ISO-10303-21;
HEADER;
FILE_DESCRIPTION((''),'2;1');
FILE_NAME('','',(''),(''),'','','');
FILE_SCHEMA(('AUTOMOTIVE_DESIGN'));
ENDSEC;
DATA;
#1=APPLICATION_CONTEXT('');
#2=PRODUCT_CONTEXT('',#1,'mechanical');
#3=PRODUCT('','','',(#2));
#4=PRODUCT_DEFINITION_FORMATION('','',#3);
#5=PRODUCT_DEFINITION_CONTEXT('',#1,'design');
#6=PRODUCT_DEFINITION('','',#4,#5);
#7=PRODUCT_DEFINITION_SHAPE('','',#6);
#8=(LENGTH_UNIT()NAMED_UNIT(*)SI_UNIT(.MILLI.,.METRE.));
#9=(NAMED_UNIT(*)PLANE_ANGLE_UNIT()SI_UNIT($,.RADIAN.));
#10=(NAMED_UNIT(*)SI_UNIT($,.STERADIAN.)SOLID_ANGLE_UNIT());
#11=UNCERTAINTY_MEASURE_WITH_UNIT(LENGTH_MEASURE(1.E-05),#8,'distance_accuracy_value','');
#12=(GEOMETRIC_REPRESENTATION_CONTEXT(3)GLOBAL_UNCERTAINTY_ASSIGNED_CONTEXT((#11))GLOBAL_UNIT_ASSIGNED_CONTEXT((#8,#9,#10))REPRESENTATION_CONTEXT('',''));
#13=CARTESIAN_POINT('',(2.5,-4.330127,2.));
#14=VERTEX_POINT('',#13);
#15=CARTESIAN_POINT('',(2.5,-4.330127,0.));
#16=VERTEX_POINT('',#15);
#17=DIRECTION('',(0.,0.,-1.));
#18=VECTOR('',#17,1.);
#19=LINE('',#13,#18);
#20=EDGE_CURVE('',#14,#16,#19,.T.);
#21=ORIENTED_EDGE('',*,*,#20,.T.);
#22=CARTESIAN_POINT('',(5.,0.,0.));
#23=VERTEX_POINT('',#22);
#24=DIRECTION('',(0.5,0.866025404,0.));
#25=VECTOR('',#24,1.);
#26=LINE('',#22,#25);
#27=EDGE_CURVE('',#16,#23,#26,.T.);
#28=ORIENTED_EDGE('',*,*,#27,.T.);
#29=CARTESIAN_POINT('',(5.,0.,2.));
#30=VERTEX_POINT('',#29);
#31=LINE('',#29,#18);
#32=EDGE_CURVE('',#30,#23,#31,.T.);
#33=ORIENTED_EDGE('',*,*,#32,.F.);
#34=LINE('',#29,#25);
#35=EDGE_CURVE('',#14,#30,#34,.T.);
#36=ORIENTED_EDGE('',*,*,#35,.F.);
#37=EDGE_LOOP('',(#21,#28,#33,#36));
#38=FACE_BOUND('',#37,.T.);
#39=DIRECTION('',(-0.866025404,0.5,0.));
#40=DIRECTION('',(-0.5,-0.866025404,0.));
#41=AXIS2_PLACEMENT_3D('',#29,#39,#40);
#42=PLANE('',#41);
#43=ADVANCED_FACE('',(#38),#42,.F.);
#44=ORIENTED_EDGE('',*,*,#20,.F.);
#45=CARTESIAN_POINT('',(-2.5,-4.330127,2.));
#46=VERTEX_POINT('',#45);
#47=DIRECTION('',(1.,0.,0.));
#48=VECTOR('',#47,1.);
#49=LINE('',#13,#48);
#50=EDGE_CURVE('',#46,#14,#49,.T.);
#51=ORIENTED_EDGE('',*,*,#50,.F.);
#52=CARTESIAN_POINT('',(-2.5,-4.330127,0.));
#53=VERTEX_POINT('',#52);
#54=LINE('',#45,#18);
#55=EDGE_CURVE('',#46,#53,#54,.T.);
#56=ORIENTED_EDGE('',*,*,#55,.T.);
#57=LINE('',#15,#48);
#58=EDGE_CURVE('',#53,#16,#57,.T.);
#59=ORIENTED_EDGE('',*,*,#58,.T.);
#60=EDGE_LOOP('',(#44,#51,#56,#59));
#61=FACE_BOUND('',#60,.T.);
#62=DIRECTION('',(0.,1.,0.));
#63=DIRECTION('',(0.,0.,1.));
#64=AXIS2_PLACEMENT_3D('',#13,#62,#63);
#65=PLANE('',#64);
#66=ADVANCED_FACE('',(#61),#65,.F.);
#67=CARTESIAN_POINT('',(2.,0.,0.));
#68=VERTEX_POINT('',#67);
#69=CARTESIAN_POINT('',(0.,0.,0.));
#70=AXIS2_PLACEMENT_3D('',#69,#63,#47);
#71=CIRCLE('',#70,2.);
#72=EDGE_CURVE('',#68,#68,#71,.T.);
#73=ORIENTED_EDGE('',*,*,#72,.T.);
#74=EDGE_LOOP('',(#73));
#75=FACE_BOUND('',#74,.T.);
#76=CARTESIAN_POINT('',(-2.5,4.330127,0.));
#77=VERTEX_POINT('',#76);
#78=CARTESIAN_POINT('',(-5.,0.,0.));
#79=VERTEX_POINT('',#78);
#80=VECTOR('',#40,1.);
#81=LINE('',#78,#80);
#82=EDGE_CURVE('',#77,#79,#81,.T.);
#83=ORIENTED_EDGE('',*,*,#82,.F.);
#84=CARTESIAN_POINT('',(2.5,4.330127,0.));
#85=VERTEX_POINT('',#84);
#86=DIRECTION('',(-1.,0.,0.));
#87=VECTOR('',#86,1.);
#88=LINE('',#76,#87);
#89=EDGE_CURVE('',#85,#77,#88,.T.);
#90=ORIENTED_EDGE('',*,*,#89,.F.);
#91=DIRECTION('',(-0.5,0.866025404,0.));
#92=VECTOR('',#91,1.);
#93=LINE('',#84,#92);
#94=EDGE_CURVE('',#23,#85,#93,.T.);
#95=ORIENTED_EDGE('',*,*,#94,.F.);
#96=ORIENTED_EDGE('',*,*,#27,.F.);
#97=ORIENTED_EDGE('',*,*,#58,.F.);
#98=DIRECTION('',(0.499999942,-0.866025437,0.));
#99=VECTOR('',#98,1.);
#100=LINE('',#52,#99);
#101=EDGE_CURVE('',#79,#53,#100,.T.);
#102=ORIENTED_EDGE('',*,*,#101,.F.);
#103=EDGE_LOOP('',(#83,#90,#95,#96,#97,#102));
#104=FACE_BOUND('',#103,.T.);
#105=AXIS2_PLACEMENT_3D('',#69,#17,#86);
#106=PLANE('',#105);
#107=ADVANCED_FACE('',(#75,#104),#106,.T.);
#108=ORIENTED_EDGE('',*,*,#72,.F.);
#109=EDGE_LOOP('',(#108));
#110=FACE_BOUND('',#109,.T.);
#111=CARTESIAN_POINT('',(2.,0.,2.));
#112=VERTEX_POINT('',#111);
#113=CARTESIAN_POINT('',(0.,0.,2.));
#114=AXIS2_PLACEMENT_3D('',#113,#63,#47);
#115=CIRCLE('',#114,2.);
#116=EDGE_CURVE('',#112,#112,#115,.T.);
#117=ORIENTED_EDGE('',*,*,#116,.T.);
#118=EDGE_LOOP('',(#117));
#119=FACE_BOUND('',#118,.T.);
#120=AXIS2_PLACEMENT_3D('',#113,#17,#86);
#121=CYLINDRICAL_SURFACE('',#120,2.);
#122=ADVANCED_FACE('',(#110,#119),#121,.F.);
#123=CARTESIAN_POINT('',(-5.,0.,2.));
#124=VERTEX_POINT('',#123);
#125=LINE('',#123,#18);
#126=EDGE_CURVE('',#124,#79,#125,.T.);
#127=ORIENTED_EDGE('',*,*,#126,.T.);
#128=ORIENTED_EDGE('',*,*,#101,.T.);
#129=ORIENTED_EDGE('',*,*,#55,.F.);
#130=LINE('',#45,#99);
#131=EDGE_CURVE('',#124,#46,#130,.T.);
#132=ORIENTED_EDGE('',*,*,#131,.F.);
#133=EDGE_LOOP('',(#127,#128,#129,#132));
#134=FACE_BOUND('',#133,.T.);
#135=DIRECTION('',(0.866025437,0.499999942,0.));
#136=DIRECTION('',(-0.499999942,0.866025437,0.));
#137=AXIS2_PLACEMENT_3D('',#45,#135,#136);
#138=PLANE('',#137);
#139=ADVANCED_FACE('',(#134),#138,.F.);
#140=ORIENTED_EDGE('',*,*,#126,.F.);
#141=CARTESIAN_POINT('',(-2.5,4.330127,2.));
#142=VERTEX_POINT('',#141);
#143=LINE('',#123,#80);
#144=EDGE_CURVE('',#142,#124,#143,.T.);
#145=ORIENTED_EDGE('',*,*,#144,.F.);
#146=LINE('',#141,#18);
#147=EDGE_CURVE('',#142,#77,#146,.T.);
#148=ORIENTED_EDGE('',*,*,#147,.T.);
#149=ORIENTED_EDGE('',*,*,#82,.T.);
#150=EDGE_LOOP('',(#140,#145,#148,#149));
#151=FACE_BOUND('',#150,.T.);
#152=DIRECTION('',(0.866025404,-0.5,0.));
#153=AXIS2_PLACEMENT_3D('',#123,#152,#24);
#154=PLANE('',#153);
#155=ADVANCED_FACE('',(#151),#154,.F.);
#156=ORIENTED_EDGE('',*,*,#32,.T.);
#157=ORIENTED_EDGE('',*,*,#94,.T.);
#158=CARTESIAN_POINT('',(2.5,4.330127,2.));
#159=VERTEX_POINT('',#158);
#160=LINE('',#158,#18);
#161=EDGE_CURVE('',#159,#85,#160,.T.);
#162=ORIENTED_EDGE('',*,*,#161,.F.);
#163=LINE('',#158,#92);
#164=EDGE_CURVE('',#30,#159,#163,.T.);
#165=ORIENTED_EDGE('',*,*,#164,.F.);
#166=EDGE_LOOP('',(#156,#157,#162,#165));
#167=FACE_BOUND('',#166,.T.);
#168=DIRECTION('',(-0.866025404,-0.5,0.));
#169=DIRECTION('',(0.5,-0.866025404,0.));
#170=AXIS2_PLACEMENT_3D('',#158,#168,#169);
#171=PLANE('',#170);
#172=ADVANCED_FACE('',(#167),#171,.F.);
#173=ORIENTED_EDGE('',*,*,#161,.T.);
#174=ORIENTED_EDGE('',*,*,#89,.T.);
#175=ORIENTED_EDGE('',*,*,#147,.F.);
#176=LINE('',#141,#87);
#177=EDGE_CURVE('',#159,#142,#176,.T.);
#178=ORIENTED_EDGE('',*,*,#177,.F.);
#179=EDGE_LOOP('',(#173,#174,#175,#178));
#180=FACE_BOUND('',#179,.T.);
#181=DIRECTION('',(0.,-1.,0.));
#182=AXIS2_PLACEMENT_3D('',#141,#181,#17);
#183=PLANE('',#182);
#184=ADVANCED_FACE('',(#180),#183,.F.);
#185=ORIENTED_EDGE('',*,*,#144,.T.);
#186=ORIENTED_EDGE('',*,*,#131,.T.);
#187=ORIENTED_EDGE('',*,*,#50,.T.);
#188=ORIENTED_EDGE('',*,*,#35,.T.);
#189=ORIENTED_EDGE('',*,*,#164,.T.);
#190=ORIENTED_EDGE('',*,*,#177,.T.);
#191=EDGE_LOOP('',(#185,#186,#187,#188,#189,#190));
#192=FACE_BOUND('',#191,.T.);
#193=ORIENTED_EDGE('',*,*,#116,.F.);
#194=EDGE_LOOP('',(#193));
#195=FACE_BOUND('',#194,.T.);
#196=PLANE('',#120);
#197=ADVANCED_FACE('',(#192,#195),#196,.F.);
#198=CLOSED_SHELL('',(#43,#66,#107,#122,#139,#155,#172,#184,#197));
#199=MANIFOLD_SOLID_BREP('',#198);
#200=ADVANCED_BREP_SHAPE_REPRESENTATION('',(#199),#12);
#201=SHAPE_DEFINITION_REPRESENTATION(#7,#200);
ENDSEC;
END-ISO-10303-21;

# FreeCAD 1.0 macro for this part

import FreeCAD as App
import Part
import Sketcher
from FreeCAD import Vector
Q = App.Units.Quantity

doc = App.newDocument("Part")
params = doc.addObject("Spreadsheet::Sheet", "Params")
for row, (alias, value) in enumerate([
    ("sketch1_diameter", "4 mm"),
    ("sketch1_width", "5 mm"),
    ("sketch1_length", "5 mm"),
    ("pad1_length", "2 mm"),
], start=1):
    params.set(f"A{row}", alias)
    params.set(f"B{row}", "=" + value)
    params.setAlias(f"B{row}", alias)

body = doc.addObject("PartDesign::Body", "Body")

# Sketch on XY plane
sketch1 = body.newObject("Sketcher::SketchObject", "Sketch")
sketch1.AttachmentSupport = (doc.getObject("XY_Plane"), [""])
sketch1.MapMode = "FlatFace"
sketch1.addGeometry(Part.LineSegment(Vector(-2.5, 4.330127, 0), Vector(-5, 0, 0)), False)
sketch1.addGeometry(Part.LineSegment(Vector(-5, 0, 0), Vector(-2.5, -4.330127, 0)), False)
sketch1.addGeometry(Part.LineSegment(Vector(-2.5, -4.330127, 0), Vector(2.5, -4.330127, 0)), False)
sketch1.addGeometry(Part.LineSegment(Vector(2.5, -4.330127, 0), Vector(5, 0, 0)), False)
sketch1.addGeometry(Part.LineSegment(Vector(5, 0, 0), Vector(2.5, 4.330127, 0)), False)
sketch1.addGeometry(Part.LineSegment(Vector(2.5, 4.330127, 0), Vector(-2.5, 4.330127, 0)), False)
sketch1.addGeometry(Part.Circle(Vector(0, 0, 0), Vector(0, 0, 1), 2), False)
sketch1.addConstraint(Sketcher.Constraint("Coincident", 0, 2, 1, 1))
sketch1.addConstraint(Sketcher.Constraint("Coincident", 1, 2, 2, 1))
sketch1.addConstraint(Sketcher.Constraint("Coincident", 2, 2, 3, 1))
sketch1.addConstraint(Sketcher.Constraint("Coincident", 3, 2, 4, 1))
sketch1.addConstraint(Sketcher.Constraint("Coincident", 4, 2, 5, 1))
sketch1.addConstraint(Sketcher.Constraint("Coincident", 5, 2, 0, 1))
sketch1.addConstraint(Sketcher.Constraint("Horizontal", 2))
sketch1.addConstraint(Sketcher.Constraint("Horizontal", 5))
sketch1.addConstraint(Sketcher.Constraint("Coincident", 6, 3, -1, 1))
sketch1.addConstraint(Sketcher.Constraint("Symmetric", 0, 2, 3, 2, -1, 1))
sketch1.addConstraint(Sketcher.Constraint("Symmetric", 1, 2, 4, 2, -1, 1))
sketch1.addConstraint(Sketcher.Constraint("PointOnObject", 0, 2, -1))
sketch1.addConstraint(Sketcher.Constraint("Parallel", 0, 3))
sketch1.addConstraint(Sketcher.Constraint("Vertical", 2, 2, 4, 2))
sketch1.addConstraint(Sketcher.Constraint("Diameter", 6, 4.0))
sketch1.addConstraint(Sketcher.Constraint("DistanceX", 2, 1, 2, 2, 5.0))
sketch1.addConstraint(Sketcher.Constraint("Angle", 0, Q("-120 deg")))
sketch1.addConstraint(Sketcher.Constraint("Distance", 0, 5.0))
sketch1.setExpression("Constraints[14]", "Params.sketch1_diameter")
sketch1.setExpression("Constraints[15]", "Params.sketch1_width")
sketch1.setExpression("Constraints[17]", "Params.sketch1_length")
pad1 = body.newObject("PartDesign::Pad", "Pad")
pad1.Profile = sketch1
pad1.setExpression("Length", "Params.pad1_length")

doc.recompute()
